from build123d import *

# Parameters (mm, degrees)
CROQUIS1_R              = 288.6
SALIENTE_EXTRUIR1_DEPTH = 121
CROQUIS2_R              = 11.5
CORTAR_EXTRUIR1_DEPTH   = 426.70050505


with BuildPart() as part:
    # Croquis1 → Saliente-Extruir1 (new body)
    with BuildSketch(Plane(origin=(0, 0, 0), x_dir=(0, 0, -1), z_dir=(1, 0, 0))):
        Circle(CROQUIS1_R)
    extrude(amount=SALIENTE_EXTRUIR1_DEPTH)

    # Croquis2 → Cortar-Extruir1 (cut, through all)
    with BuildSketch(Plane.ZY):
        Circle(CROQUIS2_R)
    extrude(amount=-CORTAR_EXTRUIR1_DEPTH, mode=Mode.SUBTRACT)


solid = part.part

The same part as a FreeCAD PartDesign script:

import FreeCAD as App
import Part
import Sketcher

V = App.Vector
Q = App.Units.Quantity

doc = App.newDocument("Part")
body = doc.addObject("PartDesign::Body", "Body")

sketch1 = body.newObject("Sketcher::SketchObject", "Sketch")
sketch1.AttachmentSupport = (doc.getObject("YZ_Plane"), [""])
sketch1.MapMode = "FlatFace"
sketch1.addGeometry(Part.Circle(V(0, 0, 0), V(0, 0, 1), 288.6), False)
sketch1.addConstraint(Sketcher.Constraint("Coincident", 0, 3, -1, 1))
sketch1.addConstraint(Sketcher.Constraint("Diameter", 0, Q("577.2 mm")))
pad1 = body.newObject("PartDesign::Pad", "Pad")
pad1.Profile = sketch1
pad1.Length = 121

sketch2 = body.newObject("Sketcher::SketchObject", "Sketch001")
sketch2.AttachmentSupport = (doc.getObject("YZ_Plane"), [""])
sketch2.MapMode = "FlatFace"
sketch2.addGeometry(Part.Circle(V(0, 0, 0), V(0, 0, 1), 11.5), False)
sketch2.addConstraint(Sketcher.Constraint("Coincident", 0, 3, -1, 1))
sketch2.addConstraint(Sketcher.Constraint("Diameter", 0, Q("23 mm")))
pocket1 = body.newObject("PartDesign::Pocket", "Pocket")
pocket1.Profile = sketch2
pocket1.Type = "ThroughAll"
pocket1.Reversed = True

doc.recompute()
